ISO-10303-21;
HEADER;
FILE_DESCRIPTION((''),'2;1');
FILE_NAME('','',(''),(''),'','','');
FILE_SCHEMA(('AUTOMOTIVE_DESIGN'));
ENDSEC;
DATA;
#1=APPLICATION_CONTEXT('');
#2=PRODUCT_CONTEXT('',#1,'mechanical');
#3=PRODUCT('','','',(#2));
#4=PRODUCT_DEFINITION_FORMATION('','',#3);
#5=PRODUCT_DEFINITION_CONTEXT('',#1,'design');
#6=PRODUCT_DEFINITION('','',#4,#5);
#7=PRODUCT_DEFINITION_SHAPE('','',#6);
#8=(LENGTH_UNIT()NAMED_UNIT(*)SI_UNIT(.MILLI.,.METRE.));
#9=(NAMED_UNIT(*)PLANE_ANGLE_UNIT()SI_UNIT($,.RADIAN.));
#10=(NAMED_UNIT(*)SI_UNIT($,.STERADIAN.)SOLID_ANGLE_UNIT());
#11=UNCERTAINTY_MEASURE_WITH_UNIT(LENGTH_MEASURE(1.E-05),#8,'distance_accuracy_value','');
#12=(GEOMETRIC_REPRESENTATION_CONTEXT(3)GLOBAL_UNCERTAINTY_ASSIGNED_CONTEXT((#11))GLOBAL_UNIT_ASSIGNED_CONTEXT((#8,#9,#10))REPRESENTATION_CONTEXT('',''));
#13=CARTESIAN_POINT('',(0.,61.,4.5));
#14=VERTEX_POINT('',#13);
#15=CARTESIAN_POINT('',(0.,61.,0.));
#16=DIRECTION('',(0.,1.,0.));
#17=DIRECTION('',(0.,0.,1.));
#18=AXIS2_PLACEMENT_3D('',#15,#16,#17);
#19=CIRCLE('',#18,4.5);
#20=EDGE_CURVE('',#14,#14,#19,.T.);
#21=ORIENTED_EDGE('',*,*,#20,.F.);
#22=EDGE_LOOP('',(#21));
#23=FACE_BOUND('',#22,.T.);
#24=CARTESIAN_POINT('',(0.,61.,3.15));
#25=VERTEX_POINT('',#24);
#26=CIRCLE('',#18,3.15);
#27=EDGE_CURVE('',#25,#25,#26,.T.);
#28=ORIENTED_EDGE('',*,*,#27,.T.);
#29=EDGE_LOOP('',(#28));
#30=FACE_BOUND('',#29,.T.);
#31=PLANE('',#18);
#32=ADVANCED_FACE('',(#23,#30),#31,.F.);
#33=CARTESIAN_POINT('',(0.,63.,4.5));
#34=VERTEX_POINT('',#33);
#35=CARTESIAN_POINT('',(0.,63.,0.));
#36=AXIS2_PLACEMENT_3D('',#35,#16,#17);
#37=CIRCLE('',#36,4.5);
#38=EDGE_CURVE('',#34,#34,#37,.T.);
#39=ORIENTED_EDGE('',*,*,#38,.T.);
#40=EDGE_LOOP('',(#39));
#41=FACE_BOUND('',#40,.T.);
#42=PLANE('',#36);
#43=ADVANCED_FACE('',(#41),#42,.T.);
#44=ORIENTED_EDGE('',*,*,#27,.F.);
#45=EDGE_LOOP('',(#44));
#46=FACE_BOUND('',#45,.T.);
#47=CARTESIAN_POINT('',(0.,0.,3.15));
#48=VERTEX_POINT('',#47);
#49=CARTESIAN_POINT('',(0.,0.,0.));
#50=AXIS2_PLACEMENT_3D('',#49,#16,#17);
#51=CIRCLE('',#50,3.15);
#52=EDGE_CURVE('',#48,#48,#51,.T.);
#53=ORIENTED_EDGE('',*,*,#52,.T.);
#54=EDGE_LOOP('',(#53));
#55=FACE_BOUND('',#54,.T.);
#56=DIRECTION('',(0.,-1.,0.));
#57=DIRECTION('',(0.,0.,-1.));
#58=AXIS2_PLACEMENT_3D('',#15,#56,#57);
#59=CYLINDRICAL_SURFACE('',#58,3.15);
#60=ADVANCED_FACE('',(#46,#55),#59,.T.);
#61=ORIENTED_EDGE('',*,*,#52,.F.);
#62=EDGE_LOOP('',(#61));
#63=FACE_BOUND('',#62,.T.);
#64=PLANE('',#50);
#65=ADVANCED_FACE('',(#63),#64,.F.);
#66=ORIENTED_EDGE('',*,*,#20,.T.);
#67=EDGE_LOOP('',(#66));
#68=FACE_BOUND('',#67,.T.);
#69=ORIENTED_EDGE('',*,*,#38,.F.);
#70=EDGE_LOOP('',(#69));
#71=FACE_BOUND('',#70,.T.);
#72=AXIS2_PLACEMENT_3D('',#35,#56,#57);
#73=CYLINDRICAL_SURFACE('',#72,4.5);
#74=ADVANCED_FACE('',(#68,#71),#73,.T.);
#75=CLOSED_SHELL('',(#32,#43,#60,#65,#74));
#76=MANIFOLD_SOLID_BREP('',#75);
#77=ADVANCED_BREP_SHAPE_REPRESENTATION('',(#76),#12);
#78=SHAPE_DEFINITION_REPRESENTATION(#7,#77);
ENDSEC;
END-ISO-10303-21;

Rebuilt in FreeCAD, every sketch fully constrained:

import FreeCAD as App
import Part
import Sketcher

V = App.Vector
Q = App.Units.Quantity

doc = App.newDocument("Part")
body = doc.addObject("PartDesign::Body", "Body")

# Sketch on XZ plane
sketch1 = doc.addObject("Sketcher::SketchObject", "Sketch")
body.addObject(sketch1)
sketch1.AttachmentSupport = (doc.XZ_Plane, [""])
sketch1.MapMode = "FlatFace"
sketch1.addGeometry(Part.Circle(V(0, 0, 0), V(0, 0, 1), 3.1), False)
sketch1.addConstraint([
    Sketcher.Constraint("Coincident", 0, 3, -1, 1),
    Sketcher.Constraint("Diameter", 0, Q("6.3 mm")),
])
pad1 = doc.addObject("PartDesign::Pad", "Pad")
body.addObject(pad1)
pad1.Profile = sketch1
pad1.Length = 61
pad1.Reversed = True

# Sketch on XZ plane
sketch2 = doc.addObject("Sketcher::SketchObject", "Sketch001")
body.addObject(sketch2)
sketch2.AttachmentSupport = (doc.XZ_Plane, [""])
sketch2.MapMode = "FlatFace"
sketch2.AttachmentOffset = App.Placement(V(0, 0, -61), App.Rotation())
sketch2.addGeometry(Part.Circle(V(0, 0, 0), V(0, 0, 1), 4.5), False)
sketch2.addConstraint([
    Sketcher.Constraint("Coincident", 0, 3, -1, 1),
    Sketcher.Constraint("Diameter", 0, Q("9 mm")),
])
pad2 = doc.addObject("PartDesign::Pad", "Pad001")
body.addObject(pad2)
pad2.Profile = sketch2
pad2.Length = 2
pad2.Reversed = True

doc.recompute()
